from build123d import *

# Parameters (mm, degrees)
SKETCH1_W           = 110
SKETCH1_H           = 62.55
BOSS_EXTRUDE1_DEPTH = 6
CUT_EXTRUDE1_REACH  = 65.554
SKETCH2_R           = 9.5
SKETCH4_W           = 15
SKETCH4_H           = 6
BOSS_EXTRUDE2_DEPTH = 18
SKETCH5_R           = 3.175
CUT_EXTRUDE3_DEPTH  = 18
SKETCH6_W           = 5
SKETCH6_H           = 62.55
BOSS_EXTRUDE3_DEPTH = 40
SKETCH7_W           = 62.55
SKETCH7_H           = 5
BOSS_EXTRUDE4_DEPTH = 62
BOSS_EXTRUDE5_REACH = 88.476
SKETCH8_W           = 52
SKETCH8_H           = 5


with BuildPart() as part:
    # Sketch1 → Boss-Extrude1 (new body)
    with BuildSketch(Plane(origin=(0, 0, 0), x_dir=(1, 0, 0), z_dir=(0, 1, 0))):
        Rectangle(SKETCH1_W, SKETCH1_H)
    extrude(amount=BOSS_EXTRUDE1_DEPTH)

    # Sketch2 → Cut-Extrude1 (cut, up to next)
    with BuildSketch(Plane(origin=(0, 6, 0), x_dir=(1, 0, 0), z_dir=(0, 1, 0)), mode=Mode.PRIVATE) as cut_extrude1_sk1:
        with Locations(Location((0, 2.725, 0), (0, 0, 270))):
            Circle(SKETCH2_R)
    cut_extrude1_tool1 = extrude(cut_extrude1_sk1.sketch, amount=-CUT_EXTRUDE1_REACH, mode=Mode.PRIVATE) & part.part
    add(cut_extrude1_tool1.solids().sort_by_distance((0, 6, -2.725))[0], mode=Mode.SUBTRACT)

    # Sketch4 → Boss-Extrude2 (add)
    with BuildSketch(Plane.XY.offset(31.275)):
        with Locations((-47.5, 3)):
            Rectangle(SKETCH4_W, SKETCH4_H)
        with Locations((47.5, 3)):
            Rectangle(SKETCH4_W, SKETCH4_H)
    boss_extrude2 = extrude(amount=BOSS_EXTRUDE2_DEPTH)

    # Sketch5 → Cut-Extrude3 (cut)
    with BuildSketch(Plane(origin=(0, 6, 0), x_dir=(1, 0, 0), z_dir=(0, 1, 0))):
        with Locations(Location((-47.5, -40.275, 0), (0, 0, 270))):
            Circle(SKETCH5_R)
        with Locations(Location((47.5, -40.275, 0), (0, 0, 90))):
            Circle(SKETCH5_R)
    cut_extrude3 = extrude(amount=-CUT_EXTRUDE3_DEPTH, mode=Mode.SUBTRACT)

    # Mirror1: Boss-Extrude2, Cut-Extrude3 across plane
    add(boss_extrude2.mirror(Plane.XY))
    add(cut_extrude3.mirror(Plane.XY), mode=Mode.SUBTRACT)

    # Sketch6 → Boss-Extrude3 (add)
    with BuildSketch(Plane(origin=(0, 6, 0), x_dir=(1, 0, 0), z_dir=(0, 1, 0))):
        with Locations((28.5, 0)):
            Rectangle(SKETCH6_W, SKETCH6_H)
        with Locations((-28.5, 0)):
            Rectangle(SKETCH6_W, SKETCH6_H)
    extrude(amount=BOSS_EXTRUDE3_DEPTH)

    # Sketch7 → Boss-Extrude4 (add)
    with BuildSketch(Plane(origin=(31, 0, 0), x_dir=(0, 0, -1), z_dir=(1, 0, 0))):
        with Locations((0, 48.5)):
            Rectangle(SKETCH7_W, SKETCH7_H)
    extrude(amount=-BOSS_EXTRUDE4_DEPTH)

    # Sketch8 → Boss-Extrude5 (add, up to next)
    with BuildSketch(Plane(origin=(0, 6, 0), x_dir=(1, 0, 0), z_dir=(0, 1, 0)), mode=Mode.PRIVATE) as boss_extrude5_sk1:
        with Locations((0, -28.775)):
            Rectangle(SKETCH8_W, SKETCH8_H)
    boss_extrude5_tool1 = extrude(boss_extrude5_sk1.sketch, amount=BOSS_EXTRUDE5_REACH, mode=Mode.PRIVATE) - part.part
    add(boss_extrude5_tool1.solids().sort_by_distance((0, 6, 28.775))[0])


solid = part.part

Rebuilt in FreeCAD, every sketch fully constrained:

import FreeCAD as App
import Part
import Sketcher

V = App.Vector
Q = App.Units.Quantity


def add_polygon(sketch, points):
    """Adds a closed chain of lines whose ends are joined by coincident constraints."""
    first, n = sketch.GeometryCount, len(points)
    for a, b in zip(points, points[1:] + points[:1]):
        sketch.addGeometry(Part.LineSegment(App.Vector(*a, 0), App.Vector(*b, 0)), False)
    for i in range(n):
        sketch.addConstraint(Sketcher.Constraint("Coincident", first + i, 2, first + (i + 1) % n, 1))

doc = App.newDocument("Part")
body = doc.addObject("PartDesign::Body", "Body")

# Sketch on XZ plane
sketch1 = body.newObject("Sketcher::SketchObject", "Sketch")
sketch1.AttachmentSupport = (doc.getObject("XZ_Plane"), [""])
sketch1.MapMode = "FlatFace"
add_polygon(sketch1, [(-55, -31.275), (-55, 31.275), (55, 31.275), (55, -31.275)])  # lines 0-3
sketch1.addConstraint(Sketcher.Constraint("Vertical", 0))
sketch1.addConstraint(Sketcher.Constraint("Horizontal", 1))
sketch1.addConstraint(Sketcher.Constraint("Vertical", 2))
sketch1.addConstraint(Sketcher.Constraint("Horizontal", 3))
sketch1.addConstraint(Sketcher.Constraint("Symmetric", 0, 2, 2, 2, -1, 1))
sketch1.addConstraint(Sketcher.Constraint("DistanceX", 1, 1, 1, 2, Q("110 mm")))
sketch1.addConstraint(Sketcher.Constraint("DistanceY", 0, 1, 0, 2, Q("62.55 mm")))
pad1 = body.newObject("PartDesign::Pad", "Pad")
pad1.Profile = sketch1
pad1.Length = 6
pad1.Reversed = True

# Sketch on XZ plane
sketch2 = body.newObject("Sketcher::SketchObject", "Sketch001")
sketch2.AttachmentSupport = (doc.getObject("XZ_Plane"), [""])
sketch2.MapMode = "FlatFace"
sketch2.AttachmentOffset = App.Placement(V(0, 0, -6), App.Rotation())
sketch2.addGeometry(Part.Circle(V(0, -2.725, 0), V(0, 0, 1), 9.5), False)
sketch2.addConstraint(Sketcher.Constraint("PointOnObject", 0, 3, -2))
sketch2.addConstraint(Sketcher.Constraint("Diameter", 0, Q("19 mm")))
sketch2.addConstraint(Sketcher.Constraint("DistanceY", 0, 3, -1, 1, Q("2.725 mm")))
pocket1 = body.newObject("PartDesign::Pocket", "Pocket")
pocket1.Profile = sketch2
pocket1.Type = "UpToFirst"
pocket1.Reversed = True

# Sketch on XY plane
sketch3 = body.newObject("Sketcher::SketchObject", "Sketch002")
sketch3.AttachmentSupport = (doc.getObject("XY_Plane"), [""])
sketch3.MapMode = "FlatFace"
sketch3.AttachmentOffset = App.Placement(V(0, 0, 31.275), App.Rotation())
add_polygon(sketch3, [(-55, 6), (-55, 0), (-40, 0), (-40, 6)])  # lines 0-3
add_polygon(sketch3, [(40, 6), (40, 0), (55, 0), (55, 6)])  # lines 4-7
sketch3.addConstraint(Sketcher.Constraint("Vertical", 0))
sketch3.addConstraint(Sketcher.Constraint("Horizontal", 1))
sketch3.addConstraint(Sketcher.Constraint("Vertical", 2))
sketch3.addConstraint(Sketcher.Constraint("Horizontal", 3))
sketch3.addConstraint(Sketcher.Constraint("Vertical", 4))
sketch3.addConstraint(Sketcher.Constraint("Horizontal", 5))
sketch3.addConstraint(Sketcher.Constraint("Vertical", 6))
sketch3.addConstraint(Sketcher.Constraint("Horizontal", 7))
sketch3.addConstraint(Sketcher.Constraint("Symmetric", 1, 2, 4, 2, -1, 1))
sketch3.addConstraint(Sketcher.Constraint("Symmetric", 0, 2, 5, 2, -2))
sketch3.addConstraint(Sketcher.Constraint("Horizontal", 3, 2, 6, 2))
sketch3.addConstraint(Sketcher.Constraint("DistanceX", 1, 1, 1, 2, Q("15 mm")))
sketch3.addConstraint(Sketcher.Constraint("DistanceY", 0, 2, 0, 1, Q("6 mm")))
sketch3.addConstraint(Sketcher.Constraint("DistanceX", 0, 2, -1, 1, Q("55 mm")))
pad2 = body.newObject("PartDesign::Pad", "Pad001")
pad2.Profile = sketch3
pad2.Length = 18

# Sketch on XZ plane
sketch4 = body.newObject("Sketcher::SketchObject", "Sketch003")
sketch4.AttachmentSupport = (doc.getObject("XZ_Plane"), [""])
sketch4.MapMode = "FlatFace"
sketch4.AttachmentOffset = App.Placement(V(0, 0, -6), App.Rotation())
sketch4.addGeometry(Part.Circle(V(-47.5, 40.275, 0), V(0, 0, 1), 3.175), False)
sketch4.addGeometry(Part.Circle(V(47.5, 40.275, 0), V(0, 0, 1), 3.175), False)
sketch4.addConstraint(Sketcher.Constraint("Equal", 0, 1))
sketch4.addConstraint(Sketcher.Constraint("Symmetric", 0, 3, 1, 3, -2))
sketch4.addConstraint(Sketcher.Constraint("Diameter", 0, Q("6.35 mm")))
sketch4.addConstraint(Sketcher.Constraint("DistanceX", 0, 3, 1, 3, Q("95 mm")))
sketch4.addConstraint(Sketcher.Constraint("DistanceY", -1, 1, 0, 3, Q("40.275 mm")))
pocket2 = body.newObject("PartDesign::Pocket", "Pocket001")
pocket2.Profile = sketch4
pocket2.Length = 18
pocket2.Reversed = True
doc.recompute()

mirrored = body.newObject("PartDesign::Mirrored", "Mirrored")
mirrored.Originals = [pad2, pocket2]
mirrored.MirrorPlane = (doc.getObject("XY_Plane"), [""])
body.Tip = mirrored

# Sketch on XZ plane
sketch5 = body.newObject("Sketcher::SketchObject", "Sketch004")
sketch5.AttachmentSupport = (doc.getObject("XZ_Plane"), [""])
sketch5.MapMode = "FlatFace"
sketch5.AttachmentOffset = App.Placement(V(0, 0, -6), App.Rotation())
add_polygon(sketch5, [(26, -31.275), (26, 31.275), (31, 31.275), (31, -31.275)])  # lines 0-3
add_polygon(sketch5, [(-31, -31.275), (-31, 31.275), (-26, 31.275), (-26, -31.275)])  # lines 4-7
sketch5.addConstraint(Sketcher.Constraint("Vertical", 0))
sketch5.addConstraint(Sketcher.Constraint("Horizontal", 1))
sketch5.addConstraint(Sketcher.Constraint("Vertical", 2))
sketch5.addConstraint(Sketcher.Constraint("Horizontal", 3))
sketch5.addConstraint(Sketcher.Constraint("Vertical", 4))
sketch5.addConstraint(Sketcher.Constraint("Horizontal", 5))
sketch5.addConstraint(Sketcher.Constraint("Vertical", 6))
sketch5.addConstraint(Sketcher.Constraint("Horizontal", 7))
sketch5.addConstraint(Sketcher.Constraint("Symmetric", 2, 2, 4, 2, -1, 1))
sketch5.addConstraint(Sketcher.Constraint("Symmetric", 0, 2, 6, 2, -1, 1))
sketch5.addConstraint(Sketcher.Constraint("Horizontal", 1, 2, 4, 2))
sketch5.addConstraint(Sketcher.Constraint("DistanceX", 1, 1, 1, 2, Q("5 mm")))
sketch5.addConstraint(Sketcher.Constraint("DistanceX", -1, 1, 0, 2, Q("26 mm")))
sketch5.addConstraint(Sketcher.Constraint("DistanceY", 0, 1, 0, 2, Q("62.55 mm")))
pad3 = body.newObject("PartDesign::Pad", "Pad002")
pad3.Profile = sketch5
pad3.Length = 40
pad3.Reversed = True

# Sketch on YZ plane
sketch6 = body.newObject("Sketcher::SketchObject", "Sketch005")
sketch6.AttachmentSupport = (doc.getObject("YZ_Plane"), [""])
sketch6.MapMode = "FlatFace"
sketch6.AttachmentOffset = App.Placement(V(0, 0, 31), App.Rotation())
add_polygon(sketch6, [(51, 31.275), (46, 31.275), (46, -31.275), (51, -31.275)])  # lines 0-3
sketch6.addConstraint(Sketcher.Constraint("Horizontal", 0))
sketch6.addConstraint(Sketcher.Constraint("Vertical", 1))
sketch6.addConstraint(Sketcher.Constraint("Horizontal", 2))
sketch6.addConstraint(Sketcher.Constraint("Vertical", 3))
sketch6.addConstraint(Sketcher.Constraint("DistanceX", 0, 2, 0, 1, Q("5 mm")))
sketch6.addConstraint(Sketcher.Constraint("DistanceX", -1, 1, 0, 2, Q("46 mm")))
sketch6.addConstraint(Sketcher.Constraint("DistanceY", 1, 2, 1, 1, Q("62.55 mm")))
sketch6.addConstraint(Sketcher.Constraint("DistanceY", -1, 1, 0, 2, Q("31.275 mm")))
pad4 = body.newObject("PartDesign::Pad", "Pad003")
pad4.Profile = sketch6
pad4.Length = 62
pad4.Reversed = True

# Sketch on XZ plane
sketch7 = body.newObject("Sketcher::SketchObject", "Sketch006")
sketch7.AttachmentSupport = (doc.getObject("XZ_Plane"), [""])
sketch7.MapMode = "FlatFace"
sketch7.AttachmentOffset = App.Placement(V(0, 0, -6), App.Rotation())
add_polygon(sketch7, [(-26, 26.275), (-26, 31.275), (26, 31.275), (26, 26.275)])  # lines 0-3
sketch7.addConstraint(Sketcher.Constraint("Vertical", 0))
sketch7.addConstraint(Sketcher.Constraint("Horizontal", 1))
sketch7.addConstraint(Sketcher.Constraint("Vertical", 2))
sketch7.addConstraint(Sketcher.Constraint("Horizontal", 3))
sketch7.addConstraint(Sketcher.Constraint("DistanceX", 1, 1, 1, 2, Q("52 mm")))
sketch7.addConstraint(Sketcher.Constraint("DistanceY", 0, 1, 0, 2, Q("5 mm")))
sketch7.addConstraint(Sketcher.Constraint("DistanceX", 0, 2, -1, 1, Q("26 mm")))
sketch7.addConstraint(Sketcher.Constraint("DistanceY", -1, 1, 0, 2, Q("31.275 mm")))
pad5 = body.newObject("PartDesign::Pad", "Pad004")
pad5.Profile = sketch7
pad5.Type = "UpToFirst"
pad5.Reversed = True

doc.recompute()
